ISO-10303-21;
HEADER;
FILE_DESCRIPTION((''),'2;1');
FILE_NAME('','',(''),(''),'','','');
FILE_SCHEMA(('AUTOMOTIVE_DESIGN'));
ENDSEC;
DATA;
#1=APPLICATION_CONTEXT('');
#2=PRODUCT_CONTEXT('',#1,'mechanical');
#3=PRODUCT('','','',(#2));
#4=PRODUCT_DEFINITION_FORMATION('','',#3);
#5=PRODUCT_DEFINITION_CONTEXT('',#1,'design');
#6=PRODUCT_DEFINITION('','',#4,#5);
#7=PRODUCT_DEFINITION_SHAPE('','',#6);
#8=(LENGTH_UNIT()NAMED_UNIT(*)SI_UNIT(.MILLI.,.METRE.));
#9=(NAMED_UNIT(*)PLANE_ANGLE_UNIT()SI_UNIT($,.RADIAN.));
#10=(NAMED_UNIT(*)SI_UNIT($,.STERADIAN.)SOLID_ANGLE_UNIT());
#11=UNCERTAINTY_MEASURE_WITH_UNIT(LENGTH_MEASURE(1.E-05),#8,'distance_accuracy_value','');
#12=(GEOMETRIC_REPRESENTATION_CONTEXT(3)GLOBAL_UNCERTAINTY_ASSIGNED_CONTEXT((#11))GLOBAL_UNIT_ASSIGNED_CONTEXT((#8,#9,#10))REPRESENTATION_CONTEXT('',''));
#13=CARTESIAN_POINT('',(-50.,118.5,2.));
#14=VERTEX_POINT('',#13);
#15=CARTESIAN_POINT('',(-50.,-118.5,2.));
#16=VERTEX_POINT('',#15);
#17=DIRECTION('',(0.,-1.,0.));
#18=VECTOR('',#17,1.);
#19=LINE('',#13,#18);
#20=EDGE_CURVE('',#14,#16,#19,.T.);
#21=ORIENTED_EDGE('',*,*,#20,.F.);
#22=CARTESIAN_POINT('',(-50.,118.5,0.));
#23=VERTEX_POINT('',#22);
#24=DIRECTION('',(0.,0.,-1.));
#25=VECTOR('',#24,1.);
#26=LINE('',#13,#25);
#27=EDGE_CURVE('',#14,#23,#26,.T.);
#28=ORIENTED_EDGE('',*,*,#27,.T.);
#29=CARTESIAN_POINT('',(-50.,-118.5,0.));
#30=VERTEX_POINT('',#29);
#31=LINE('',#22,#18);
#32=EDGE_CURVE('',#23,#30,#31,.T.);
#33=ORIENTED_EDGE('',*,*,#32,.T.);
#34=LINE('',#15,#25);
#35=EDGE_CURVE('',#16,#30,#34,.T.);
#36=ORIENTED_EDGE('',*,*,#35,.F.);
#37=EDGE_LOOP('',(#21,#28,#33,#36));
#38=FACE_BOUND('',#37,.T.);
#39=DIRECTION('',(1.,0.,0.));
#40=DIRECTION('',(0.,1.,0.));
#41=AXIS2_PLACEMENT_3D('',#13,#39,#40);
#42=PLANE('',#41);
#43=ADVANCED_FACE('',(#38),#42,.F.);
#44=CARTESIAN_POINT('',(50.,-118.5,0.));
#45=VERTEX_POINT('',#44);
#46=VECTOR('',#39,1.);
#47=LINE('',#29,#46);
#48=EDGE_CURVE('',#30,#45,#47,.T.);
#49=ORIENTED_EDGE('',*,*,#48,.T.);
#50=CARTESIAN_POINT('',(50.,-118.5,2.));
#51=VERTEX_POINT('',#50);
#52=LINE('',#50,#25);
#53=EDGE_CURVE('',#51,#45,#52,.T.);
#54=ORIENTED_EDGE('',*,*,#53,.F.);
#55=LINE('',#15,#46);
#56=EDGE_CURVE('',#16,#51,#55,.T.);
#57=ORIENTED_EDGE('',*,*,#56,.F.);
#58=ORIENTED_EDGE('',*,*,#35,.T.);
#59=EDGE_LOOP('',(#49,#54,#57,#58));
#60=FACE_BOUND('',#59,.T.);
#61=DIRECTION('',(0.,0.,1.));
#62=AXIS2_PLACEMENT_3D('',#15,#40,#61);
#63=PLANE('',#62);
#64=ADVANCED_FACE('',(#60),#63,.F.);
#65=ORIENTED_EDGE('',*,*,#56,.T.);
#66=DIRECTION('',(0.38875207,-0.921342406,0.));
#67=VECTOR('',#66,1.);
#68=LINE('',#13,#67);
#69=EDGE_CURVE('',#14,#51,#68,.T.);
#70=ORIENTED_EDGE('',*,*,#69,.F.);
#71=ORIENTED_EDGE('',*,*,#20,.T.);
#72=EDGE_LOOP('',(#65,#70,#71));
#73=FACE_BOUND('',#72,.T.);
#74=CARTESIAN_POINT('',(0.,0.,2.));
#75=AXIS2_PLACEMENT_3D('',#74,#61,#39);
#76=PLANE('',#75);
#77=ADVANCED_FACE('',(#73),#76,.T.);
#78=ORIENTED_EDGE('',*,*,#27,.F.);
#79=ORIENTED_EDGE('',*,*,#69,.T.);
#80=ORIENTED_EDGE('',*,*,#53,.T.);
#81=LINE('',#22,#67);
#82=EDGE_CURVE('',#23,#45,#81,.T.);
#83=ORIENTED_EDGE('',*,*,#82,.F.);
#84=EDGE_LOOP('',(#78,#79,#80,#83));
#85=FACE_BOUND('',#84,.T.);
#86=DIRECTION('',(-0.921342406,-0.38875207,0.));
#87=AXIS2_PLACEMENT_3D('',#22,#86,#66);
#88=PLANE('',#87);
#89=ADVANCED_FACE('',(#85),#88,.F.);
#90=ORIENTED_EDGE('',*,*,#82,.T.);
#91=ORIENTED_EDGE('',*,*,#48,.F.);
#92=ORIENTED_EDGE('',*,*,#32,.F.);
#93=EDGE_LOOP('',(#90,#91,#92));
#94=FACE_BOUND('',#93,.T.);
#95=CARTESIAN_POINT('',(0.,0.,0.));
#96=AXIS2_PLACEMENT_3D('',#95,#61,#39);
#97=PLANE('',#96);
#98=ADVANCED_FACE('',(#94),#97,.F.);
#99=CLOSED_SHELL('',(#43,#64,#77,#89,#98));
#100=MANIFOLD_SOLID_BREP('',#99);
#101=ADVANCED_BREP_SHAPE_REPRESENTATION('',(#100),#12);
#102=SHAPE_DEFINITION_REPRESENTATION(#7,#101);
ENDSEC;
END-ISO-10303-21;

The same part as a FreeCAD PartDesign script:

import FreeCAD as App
import Part
import Sketcher

V = App.Vector

doc = App.newDocument("Part")
body = doc.addObject("PartDesign::Body", "Body")

sketch1 = body.newObject("Sketcher::SketchObject", "Sketch")
sketch1.AttachmentSupport = (doc.getObject("XY_Plane"), [""])
sketch1.MapMode = "FlatFace"
sketch1.addGeometry(Part.LineSegment(V(-50, 118, 0), V(-50, -118, 0)), False)
sketch1.addGeometry(Part.LineSegment(V(-50, -118, 0), V(50, -118, 0)), False)
sketch1.addGeometry(Part.LineSegment(V(50, -118, 0), V(50, 118, 0)), False)
sketch1.addGeometry(Part.LineSegment(V(50, 118, 0), V(-50, 118, 0)), False)
sketch1.addConstraint(Sketcher.Constraint("Coincident", 0, 2, 1, 1))
sketch1.addConstraint(Sketcher.Constraint("Coincident", 1, 2, 2, 1))
sketch1.addConstraint(Sketcher.Constraint("Coincident", 2, 2, 3, 1))
sketch1.addConstraint(Sketcher.Constraint("Coincident", 3, 2, 0, 1))
sketch1.addConstraint(Sketcher.Constraint("Vertical", 0))
sketch1.addConstraint(Sketcher.Constraint("Horizontal", 1))
sketch1.addConstraint(Sketcher.Constraint("Vertical", 2))
sketch1.addConstraint(Sketcher.Constraint("Horizontal", 3))
sketch1.addConstraint(Sketcher.Constraint("Symmetric", 0, 2, 2, 2, -1, 1))
sketch1.addConstraint(Sketcher.Constraint("DistanceX", 1, 1, 1, 2, 100.0))
sketch1.addConstraint(Sketcher.Constraint("DistanceY", 0, 2, 0, 1, 237.0))
pad1 = body.newObject("PartDesign::Pad", "Pad")
pad1.Profile = sketch1
pad1.Length = 2

sketch2 = body.newObject("Sketcher::SketchObject", "Sketch001")
sketch2.AttachmentSupport = (doc.getObject("XY_Plane"), [""])
sketch2.MapMode = "FlatFace"
sketch2.AttachmentOffset = App.Placement(V(0, 0, 2), App.Rotation())
sketch2.addGeometry(Part.LineSegment(V(-50, 118, 0), V(50, -118, 0)), False)
sketch2.addGeometry(Part.LineSegment(V(50, -118, 0), V(87, 121, 0)), False)
sketch2.addGeometry(Part.LineSegment(V(87, 121, 0), V(-50, 118, 0)), False)
sketch2.addConstraint(Sketcher.Constraint("Coincident", 0, 2, 1, 1))
sketch2.addConstraint(Sketcher.Constraint("Coincident", 1, 2, 2, 1))
sketch2.addConstraint(Sketcher.Constraint("Coincident", 2, 2, 0, 1))
sketch2.addConstraint(Sketcher.Constraint("Symmetric", 0, 2, 2, 2, -1, 1))
sketch2.addConstraint(Sketcher.Constraint("DistanceX", -1, 1, 0, 2, 50.0))
sketch2.addConstraint(Sketcher.Constraint("DistanceY", 0, 2, 2, 2, 237.0))
sketch2.addConstraint(Sketcher.Constraint("DistanceY", -1, 1, 1, 2, 120.954679))
sketch2.addConstraint(Sketcher.Constraint("Distance", 1, 242.296625))
pocket1 = body.newObject("PartDesign::Pocket", "Pocket")
pocket1.Profile = sketch2
pocket1.Type = "ThroughAll"

doc.recompute()
